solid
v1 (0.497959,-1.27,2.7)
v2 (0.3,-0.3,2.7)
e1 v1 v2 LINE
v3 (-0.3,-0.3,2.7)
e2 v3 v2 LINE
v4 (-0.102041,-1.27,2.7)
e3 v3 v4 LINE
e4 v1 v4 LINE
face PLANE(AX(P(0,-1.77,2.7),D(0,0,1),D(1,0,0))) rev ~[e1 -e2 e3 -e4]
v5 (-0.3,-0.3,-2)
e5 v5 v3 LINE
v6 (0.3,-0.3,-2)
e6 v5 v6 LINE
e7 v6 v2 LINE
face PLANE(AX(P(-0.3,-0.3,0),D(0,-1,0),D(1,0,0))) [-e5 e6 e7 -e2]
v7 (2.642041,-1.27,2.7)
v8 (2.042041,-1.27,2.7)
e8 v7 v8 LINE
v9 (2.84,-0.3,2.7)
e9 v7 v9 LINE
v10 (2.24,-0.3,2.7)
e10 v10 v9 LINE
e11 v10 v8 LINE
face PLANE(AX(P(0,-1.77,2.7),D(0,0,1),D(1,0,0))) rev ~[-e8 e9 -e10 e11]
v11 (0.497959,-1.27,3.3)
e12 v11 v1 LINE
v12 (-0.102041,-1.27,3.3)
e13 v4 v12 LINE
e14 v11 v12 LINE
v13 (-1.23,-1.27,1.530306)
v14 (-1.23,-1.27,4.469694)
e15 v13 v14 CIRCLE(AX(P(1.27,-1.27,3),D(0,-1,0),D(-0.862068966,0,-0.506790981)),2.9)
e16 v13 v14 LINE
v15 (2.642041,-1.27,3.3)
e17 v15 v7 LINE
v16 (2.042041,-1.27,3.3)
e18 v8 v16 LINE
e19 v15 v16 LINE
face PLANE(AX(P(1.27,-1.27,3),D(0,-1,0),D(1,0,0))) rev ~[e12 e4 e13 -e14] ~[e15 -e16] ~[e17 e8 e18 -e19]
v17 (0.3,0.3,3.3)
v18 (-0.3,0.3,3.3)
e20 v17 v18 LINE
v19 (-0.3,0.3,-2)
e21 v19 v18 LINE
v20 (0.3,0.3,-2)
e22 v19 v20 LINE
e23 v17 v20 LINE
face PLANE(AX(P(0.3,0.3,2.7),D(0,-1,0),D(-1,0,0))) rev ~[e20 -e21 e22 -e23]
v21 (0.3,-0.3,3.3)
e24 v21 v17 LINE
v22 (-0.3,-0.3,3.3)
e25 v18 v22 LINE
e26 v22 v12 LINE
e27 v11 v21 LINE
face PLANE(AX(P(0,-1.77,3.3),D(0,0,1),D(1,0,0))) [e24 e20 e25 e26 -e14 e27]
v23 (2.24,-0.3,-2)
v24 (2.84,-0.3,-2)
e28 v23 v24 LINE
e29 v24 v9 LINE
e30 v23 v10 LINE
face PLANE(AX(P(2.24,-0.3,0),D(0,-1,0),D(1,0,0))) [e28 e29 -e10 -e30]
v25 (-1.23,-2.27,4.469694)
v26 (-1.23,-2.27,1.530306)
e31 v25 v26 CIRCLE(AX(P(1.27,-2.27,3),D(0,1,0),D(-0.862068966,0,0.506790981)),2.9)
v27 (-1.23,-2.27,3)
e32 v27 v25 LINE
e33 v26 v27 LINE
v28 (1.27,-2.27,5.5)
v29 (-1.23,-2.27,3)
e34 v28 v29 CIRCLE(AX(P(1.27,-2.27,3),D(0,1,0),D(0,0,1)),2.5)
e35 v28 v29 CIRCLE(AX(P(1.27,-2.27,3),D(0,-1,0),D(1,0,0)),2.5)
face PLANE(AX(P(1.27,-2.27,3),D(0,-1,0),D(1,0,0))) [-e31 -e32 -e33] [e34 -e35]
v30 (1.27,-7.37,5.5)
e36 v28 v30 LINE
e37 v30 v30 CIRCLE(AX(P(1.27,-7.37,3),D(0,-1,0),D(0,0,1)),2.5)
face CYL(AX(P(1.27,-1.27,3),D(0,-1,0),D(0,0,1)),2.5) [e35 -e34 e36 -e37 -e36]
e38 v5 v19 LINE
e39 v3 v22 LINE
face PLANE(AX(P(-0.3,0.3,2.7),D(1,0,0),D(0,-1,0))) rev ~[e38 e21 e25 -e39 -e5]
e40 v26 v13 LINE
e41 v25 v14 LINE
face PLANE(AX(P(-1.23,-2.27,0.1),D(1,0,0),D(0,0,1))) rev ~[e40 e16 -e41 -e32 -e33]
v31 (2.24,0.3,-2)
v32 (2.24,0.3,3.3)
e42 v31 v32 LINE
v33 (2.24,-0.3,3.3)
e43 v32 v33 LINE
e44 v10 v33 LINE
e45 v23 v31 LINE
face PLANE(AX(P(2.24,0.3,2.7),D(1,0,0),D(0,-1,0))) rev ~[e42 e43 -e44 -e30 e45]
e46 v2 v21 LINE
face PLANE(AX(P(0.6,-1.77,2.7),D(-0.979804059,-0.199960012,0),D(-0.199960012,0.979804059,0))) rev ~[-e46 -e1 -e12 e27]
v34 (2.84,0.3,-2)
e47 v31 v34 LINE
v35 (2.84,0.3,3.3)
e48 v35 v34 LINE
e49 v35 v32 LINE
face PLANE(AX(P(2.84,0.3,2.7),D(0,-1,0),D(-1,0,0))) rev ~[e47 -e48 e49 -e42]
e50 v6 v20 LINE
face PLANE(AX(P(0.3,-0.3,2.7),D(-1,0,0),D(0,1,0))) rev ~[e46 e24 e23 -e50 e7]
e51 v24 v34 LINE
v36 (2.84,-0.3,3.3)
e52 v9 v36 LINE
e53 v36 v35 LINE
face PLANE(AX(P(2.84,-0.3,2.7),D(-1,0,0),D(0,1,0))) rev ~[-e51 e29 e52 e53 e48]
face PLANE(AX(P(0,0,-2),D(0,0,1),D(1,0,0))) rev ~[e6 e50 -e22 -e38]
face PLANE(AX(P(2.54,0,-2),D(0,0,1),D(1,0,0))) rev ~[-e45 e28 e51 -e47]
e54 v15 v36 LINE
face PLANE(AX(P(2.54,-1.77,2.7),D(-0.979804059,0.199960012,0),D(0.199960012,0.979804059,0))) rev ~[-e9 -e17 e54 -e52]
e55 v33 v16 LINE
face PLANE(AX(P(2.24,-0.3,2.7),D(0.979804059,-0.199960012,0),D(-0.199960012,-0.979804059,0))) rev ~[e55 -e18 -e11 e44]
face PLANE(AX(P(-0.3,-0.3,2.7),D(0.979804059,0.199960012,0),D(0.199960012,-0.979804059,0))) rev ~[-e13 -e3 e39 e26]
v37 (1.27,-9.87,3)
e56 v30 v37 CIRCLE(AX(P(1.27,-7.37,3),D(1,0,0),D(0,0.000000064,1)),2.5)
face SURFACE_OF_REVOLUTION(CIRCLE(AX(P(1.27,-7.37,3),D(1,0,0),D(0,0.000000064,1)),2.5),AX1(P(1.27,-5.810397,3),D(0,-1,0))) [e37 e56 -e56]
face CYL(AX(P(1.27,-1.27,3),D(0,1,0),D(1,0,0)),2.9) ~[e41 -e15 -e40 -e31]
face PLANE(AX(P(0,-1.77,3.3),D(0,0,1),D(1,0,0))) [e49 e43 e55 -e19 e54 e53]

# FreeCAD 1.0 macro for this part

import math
import FreeCAD as App
import Part
import Sketcher
Q = App.Units.Quantity


def add_polygon(sketch, points):
    """Adds a closed chain of lines whose ends are joined by coincident constraints."""
    first, n = sketch.GeometryCount, len(points)
    for a, b in zip(points, points[1:] + points[:1]):
        sketch.addGeometry(Part.LineSegment(App.Vector(*a, 0), App.Vector(*b, 0)), False)
    for i in range(n):
        sketch.addConstraint(Sketcher.Constraint("Coincident", first + i, 2, first + (i + 1) % n, 1))

doc = App.newDocument("Part")
params = doc.addObject("Spreadsheet::Sheet", "Params")
for row, (alias, value) in enumerate([
    ("sketch1_width", "0.6 mm"),
    ("pad1_length", "0.6 mm"),
    ("sketch2_height", "0.6 mm"),
    ("sketch2_width", "2.54 mm"),
    ("pad2_length", "1 mm"),
    ("sketch3_radius", "2.5 mm"),
    ("sketch3_width", "8.6 mm"),
    ("revolution_angle", "360 deg"),
    ("sketch4_width", "0.5 mm"),
    ("revolution2_angle", "360 deg"),
    ("sketch5_diameter", "5 mm"),
    ("sketch5_diameter2", "5.8 mm"),
    ("pad3_length", "1 mm"),
    ("sketch6_width", "0.4 mm"),
    ("sketch6_height", "5.8 mm"),
    ("sketch7_width", "0.6 mm"),
    ("pad4_length", "2.7 mm"),
    ("pad4_length2", "2 mm"),
], start=1):
    params.set(f"A{row}", alias)
    params.set(f"B{row}", "=" + value)
    params.setAlias(f"B{row}", alias)

body = doc.addObject("PartDesign::Body", "Body")
body.AllowCompound = True

# Sketch on XY plane
sketch1 = body.newObject("Sketcher::SketchObject", "Sketch")
sketch1.AttachmentSupport = (doc.getObject("XY_Plane"), [""])
sketch1.MapMode = "FlatFace"
sketch1.AttachmentOffset = App.Placement(App.Vector(0, 0, 2.7), App.Rotation())
add_polygon(sketch1, [(0.3, 0.3), (-0.3, 0.3), (-0.3, -0.3), (0, -1.8), (0.6, -1.8), (0.3, -0.3)])  # lines 0-5
add_polygon(sketch1, [(2.8, 0.3), (2.2, 0.3), (2.2, -0.3), (1.9, -1.8), (2.5, -1.8), (2.8, -0.3)])  # lines 6-11
sketch1.addConstraint([
    Sketcher.Constraint("Horizontal", 0),
    Sketcher.Constraint("Vertical", 1),
    Sketcher.Constraint("Horizontal", 3),
    Sketcher.Constraint("Vertical", 5),
    Sketcher.Constraint("Horizontal", 6),
    Sketcher.Constraint("Vertical", 7),
    Sketcher.Constraint("Horizontal", 9),
    Sketcher.Constraint("Vertical", 11),
    Sketcher.Constraint("Symmetric", 0, 2, 4, 2, -1, 1),
    Sketcher.Constraint("PointOnObject", 2, 2, -2),
    Sketcher.Constraint("Parallel", 2, 4),
    Sketcher.Constraint("Parallel", 8, 10),
    Sketcher.Constraint("Horizontal", 1, 2, 4, 2),
    Sketcher.Constraint("Horizontal", 5, 2, 6, 2),
    Sketcher.Constraint("Horizontal", 4, 2, 7, 2),
    Sketcher.Constraint("Horizontal", 3, 2, 8, 2),
    Sketcher.Constraint("Horizontal", 7, 2, 10, 2),
    Sketcher.Constraint("Equal", 3, 6),
    Sketcher.Constraint("Equal", 9, 1),
    Sketcher.Constraint("Equal", 4, 8),
    Sketcher.Constraint("DistanceX", 0, 2, 0, 1, Q("0.6 mm")),
    Sketcher.Constraint("DistanceY", 2, 2, -1, 1, Q("1.77 mm")),
    Sketcher.Constraint("DistanceX", -1, 1, 6, 2, Q("2.24 mm")),
])
sketch1.setExpression("Constraints[32]", "Params.sketch1_width")
pad1 = body.newObject("PartDesign::Pad", "Pad")
pad1.Profile = sketch1
pad1.setExpression("Length", "Params.pad1_length")
body2 = doc.addObject("PartDesign::Body", "Body001")

# Sketch on XZ plane
sketch2 = body2.newObject("Sketcher::SketchObject", "Sketch001")
sketch2.AttachmentSupport = (doc.getObject("XZ_Plane001"), [""])
sketch2.MapMode = "FlatFace"
sketch2.AttachmentOffset = App.Placement(App.Vector(0, 0, 1.77), App.Rotation())
add_polygon(sketch2, [(0, 3.3), (0, 2.7), (2.5, 2.7), (2.5, 3.3)])  # lines 0-3
sketch2.addConstraint([
    Sketcher.Constraint("Vertical", 0),
    Sketcher.Constraint("Horizontal", 1),
    Sketcher.Constraint("Vertical", 2),
    Sketcher.Constraint("Horizontal", 3),
    Sketcher.Constraint("PointOnObject", 0, 2, -2),
    Sketcher.Constraint("DistanceY", 0, 2, 0, 1, Q("0.6 mm")),
    Sketcher.Constraint("DistanceX", 1, 1, 1, 2, Q("2.54 mm")),
    Sketcher.Constraint("DistanceY", -1, 1, 0, 2, Q("2.7 mm")),
])
sketch2.setExpression("Constraints[9]", "Params.sketch2_height")
sketch2.setExpression("Constraints[10]", "Params.sketch2_width")
pad2 = body2.newObject("PartDesign::Pad", "Pad001")
pad2.Profile = sketch2
pad2.setExpression("Length", "Params.pad2_length")
body3 = doc.addObject("PartDesign::Body", "Body002")

# Sketch on YZ plane
sketch3 = body3.newObject("Sketcher::SketchObject", "Sketch002")
sketch3.AttachmentSupport = (doc.getObject("YZ_Plane002"), [""])
sketch3.MapMode = "FlatFace"
sketch3.AttachmentOffset = App.Placement(App.Vector(0, 0, 1.27), App.Rotation())
sketch3.addGeometry([
    Part.LineSegment(App.Vector(-9.9, 3, 0), App.Vector(-1.3, 3, 0)),
    Part.LineSegment(App.Vector(-1.3, 3, 0), App.Vector(-1.3, 5.5, 0)),
    Part.LineSegment(App.Vector(-1.3, 5.5, 0), App.Vector(-7.4, 5.5, 0)),
    Part.ArcOfCircle(Part.Circle(App.Vector(-7.4, 3, 0), App.Vector(0, 0, 1), 2.5), math.radians(90), math.radians(180)),
], False)
sketch3.addGeometry(Part.LineSegment(App.Vector(-1.3, 3, 0), App.Vector(-9.9, 3, 0)), True)  # axis
sketch3.addConstraint([
    Sketcher.Constraint("Coincident", 0, 2, 1, 1),
    Sketcher.Constraint("Coincident", 1, 2, 2, 1),
    Sketcher.Constraint("Tangent", 2, 2, 3, 1),
    Sketcher.Constraint("Coincident", 3, 2, 0, 1),
    Sketcher.Constraint("Horizontal", 0),
    Sketcher.Constraint("Vertical", 1),
    Sketcher.Constraint("Horizontal", 2),
    Sketcher.Constraint("Horizontal", 4),
    Sketcher.Constraint("Coincident", 4, 1, 0, 2),
    Sketcher.Constraint("Horizontal", 3, 3, 0, 2),
    Sketcher.Constraint("Equal", 0, 4),
    Sketcher.Constraint("Radius", 3, Q("2.5 mm")),
    Sketcher.Constraint("DistanceX", 0, 1, 0, 2, Q("8.6 mm")),
    Sketcher.Constraint("DistanceY", -1, 1, 3, 3, Q("3 mm")),
    Sketcher.Constraint("DistanceX", 3, 3, -1, 1, Q("7.37 mm")),
])
sketch3.setExpression("Constraints[11]", "Params.sketch3_radius")
sketch3.setExpression("Constraints[12]", "Params.sketch3_width")
revolution = body3.newObject("PartDesign::Revolution", "Revolution")
revolution.Profile = sketch3
revolution.ReferenceAxis = (sketch3, ["Axis0"])
revolution.setExpression("Angle", "Params.revolution_angle")
body4 = doc.addObject("PartDesign::Body", "Body003")

# Sketch on YZ plane
sketch4 = body4.newObject("Sketcher::SketchObject", "Sketch003")
sketch4.AttachmentSupport = (doc.getObject("YZ_Plane003"), [""])
sketch4.MapMode = "FlatFace"
sketch4.AttachmentOffset = App.Placement(App.Vector(0, 0, 1.27), App.Rotation())
add_polygon(sketch4, [(-3, 3), (-2.5, 3), (-3, 3.5)])  # lines 0-2
sketch4.addGeometry(Part.LineSegment(App.Vector(-2.5, 3, 0), App.Vector(-3, 3, 0)), True)  # axis
sketch4.addConstraint([
    Sketcher.Constraint("Horizontal", 0),
    Sketcher.Constraint("Vertical", 2),
    Sketcher.Constraint("Horizontal", 3),
    Sketcher.Constraint("Coincident", 3, 1, 0, 2),
    Sketcher.Constraint("Vertical", 1, 2, 3, 2),
    Sketcher.Constraint("Equal", 3, 2),
    Sketcher.Constraint("DistanceX", 0, 1, 0, 2, Q("0.5 mm")),
    Sketcher.Constraint("DistanceY", -1, 1, 0, 2, Q("3 mm")),
    Sketcher.Constraint("DistanceX", 0, 2, -1, 1, Q("2.47 mm")),
])
sketch4.setExpression("Constraints[9]", "Params.sketch4_width")
revolution2 = body4.newObject("PartDesign::Revolution", "Revolution001")
revolution2.Profile = sketch4
revolution2.ReferenceAxis = (sketch4, ["Axis0"])
revolution2.setExpression("Angle", "Params.revolution2_angle")
body5 = doc.addObject("PartDesign::Body", "Body004")

# Sketch on XZ plane
sketch5 = body5.newObject("Sketcher::SketchObject", "Sketch004")
sketch5.AttachmentSupport = (doc.getObject("XZ_Plane004"), [""])
sketch5.MapMode = "FlatFace"
sketch5.AttachmentOffset = App.Placement(App.Vector(0, 0, 1.27), App.Rotation())
sketch5.addGeometry([
    Part.Circle(App.Vector(1.3, 3, 0), App.Vector(0, 0, 1), 2.9),
    Part.Circle(App.Vector(1.3, 3, 0), App.Vector(0, 0, 1), 2.5),
], False)
sketch5.addConstraint([
    Sketcher.Constraint("Coincident", 1, 3, 0, 3),
    Sketcher.Constraint("Diameter", 1, Q("5 mm")),
    Sketcher.Constraint("Diameter", 0, Q("5.8 mm")),
    Sketcher.Constraint("DistanceY", -1, 1, 0, 3, Q("3 mm")),
    Sketcher.Constraint("DistanceX", -1, 1, 0, 3, Q("1.27 mm")),
])
sketch5.setExpression("Constraints[1]", "Params.sketch5_diameter")
sketch5.setExpression("Constraints[2]", "Params.sketch5_diameter2")
pad3 = body5.newObject("PartDesign::Pad", "Pad002")
pad3.Profile = sketch5
pad3.setExpression("Length", "Params.pad3_length")

# Sketch on XZ plane
sketch6 = body5.newObject("Sketcher::SketchObject", "Sketch005")
sketch6.AttachmentSupport = (doc.getObject("XZ_Plane004"), [""])
sketch6.MapMode = "FlatFace"
sketch6.AttachmentOffset = App.Placement(App.Vector(0, 0, 2.27), App.Rotation())
add_polygon(sketch6, [(-1.63, 5.9), (-1.63, 0.1), (-1.23, 0.1), (-1.23, 5.9)])  # lines 0-3
sketch6.addConstraint([
    Sketcher.Constraint("Vertical", 0),
    Sketcher.Constraint("Horizontal", 1),
    Sketcher.Constraint("Vertical", 2),
    Sketcher.Constraint("Horizontal", 3),
    Sketcher.Constraint("DistanceX", 1, 1, 1, 2, Q("0.4 mm")),
    Sketcher.Constraint("DistanceY", 0, 2, 0, 1, Q("5.8 mm")),
    Sketcher.Constraint("DistanceY", -1, 1, 0, 2, Q("0.1 mm")),
    Sketcher.Constraint("DistanceX", 0, 2, -1, 1, Q("1.63 mm")),
])
sketch6.setExpression("Constraints[8]", "Params.sketch6_width")
sketch6.setExpression("Constraints[9]", "Params.sketch6_height")
pocket1 = body5.newObject("PartDesign::Pocket", "Pocket")
pocket1.Profile = sketch6
pocket1.Type = "ThroughAll"
body6 = doc.addObject("PartDesign::Body", "Body005")
body6.AllowCompound = True

# Sketch on XY plane
sketch7 = body6.newObject("Sketcher::SketchObject", "Sketch006")
sketch7.AttachmentSupport = (doc.getObject("XY_Plane005"), [""])
sketch7.MapMode = "FlatFace"
add_polygon(sketch7, [(-0.3, 0.3), (-0.3, -0.3), (0.3, -0.3), (0.3, 0.3)])  # lines 0-3
add_polygon(sketch7, [(2.2, 0.3), (2.2, -0.3), (2.8, -0.3), (2.8, 0.3)])  # lines 4-7
sketch7.addConstraint([
    Sketcher.Constraint("Vertical", 0),
    Sketcher.Constraint("Horizontal", 1),
    Sketcher.Constraint("Vertical", 2),
    Sketcher.Constraint("Horizontal", 3),
    Sketcher.Constraint("Vertical", 4),
    Sketcher.Constraint("Horizontal", 5),
    Sketcher.Constraint("Vertical", 6),
    Sketcher.Constraint("Horizontal", 7),
    Sketcher.Constraint("Symmetric", 0, 2, 2, 2, -1, 1),
    Sketcher.Constraint("Horizontal", 1, 2, 4, 2),
    Sketcher.Constraint("Horizontal", 3, 2, 6, 2),
    Sketcher.Constraint("Equal", 3, 5),
    Sketcher.Constraint("Equal", 7, 0),
    Sketcher.Constraint("DistanceX", 1, 1, 1, 2, Q("0.6 mm")),
    Sketcher.Constraint("DistanceX", -1, 1, 4, 2, Q("2.24 mm")),
])
sketch7.setExpression("Constraints[21]", "Params.sketch7_width")
pad4 = body6.newObject("PartDesign::Pad", "Pad003")
pad4.Profile = sketch7
pad4.Type = "TwoLengths"
pad4.setExpression("Length", "Params.pad4_length")
pad4.setExpression("Length2", "Params.pad4_length2")
doc.recompute()

boolean = body6.newObject("PartDesign::Boolean", "Boolean")
boolean.Type = "Fuse"
boolean.addObjects([body])
doc.recompute()

boolean2 = body6.newObject("PartDesign::Boolean", "Boolean001")
boolean2.Type = "Fuse"
boolean2.addObjects([body2])
doc.recompute()

boolean3 = body6.newObject("PartDesign::Boolean", "Boolean002")
boolean3.Type = "Fuse"
boolean3.addObjects([body3])
doc.recompute()

boolean4 = body6.newObject("PartDesign::Boolean", "Boolean003")
boolean4.Type = "Fuse"
boolean4.addObjects([body4])
doc.recompute()

boolean5 = body6.newObject("PartDesign::Boolean", "Boolean004")
boolean5.Type = "Fuse"
boolean5.addObjects([body5])

doc.recompute()
